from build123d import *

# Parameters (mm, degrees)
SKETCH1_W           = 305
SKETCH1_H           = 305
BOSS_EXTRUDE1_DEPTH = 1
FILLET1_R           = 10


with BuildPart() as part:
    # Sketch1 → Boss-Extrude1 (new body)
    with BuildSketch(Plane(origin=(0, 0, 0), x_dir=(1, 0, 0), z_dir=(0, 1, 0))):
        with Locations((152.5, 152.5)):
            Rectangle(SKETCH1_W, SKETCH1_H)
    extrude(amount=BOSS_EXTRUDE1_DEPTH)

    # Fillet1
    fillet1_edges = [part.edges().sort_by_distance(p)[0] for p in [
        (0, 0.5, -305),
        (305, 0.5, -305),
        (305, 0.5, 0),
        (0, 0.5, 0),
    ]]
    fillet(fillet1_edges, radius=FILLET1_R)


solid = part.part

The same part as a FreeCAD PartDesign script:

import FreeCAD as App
import Part
import Sketcher

V = App.Vector


def edges_at(feature, points):
    """Names of the edges that pass closest to the given points."""
    edges = feature.Shape.Edges
    near = lambda p: min(range(len(edges)), key=lambda i: edges[i].distToShape(Part.Vertex(*p))[0])
    return sorted({f"Edge{near(p) + 1}" for p in points})

doc = App.newDocument("Part")
params = doc.addObject("Spreadsheet::Sheet", "Params")
for row, (alias, value) in enumerate([
    ("sketch1_width", "305 mm"),
    ("pad1_length", "1 mm"),
    ("fillet_radius", "10 mm"),
], start=1):
    params.set(f"A{row}", alias)
    params.set(f"B{row}", "=" + value)
    params.setAlias(f"B{row}", alias)

body = doc.addObject("PartDesign::Body", "Body")

sketch1 = body.newObject("Sketcher::SketchObject", "Sketch")
sketch1.AttachmentSupport = (doc.getObject("XZ_Plane"), [""])
sketch1.MapMode = "FlatFace"
sketch1.addGeometry(Part.LineSegment(V(0, -305, 0), V(0, 0, 0)), False)
sketch1.addGeometry(Part.LineSegment(V(0, 0, 0), V(305, 0, 0)), False)
sketch1.addGeometry(Part.LineSegment(V(305, 0, 0), V(305, -305, 0)), False)
sketch1.addGeometry(Part.LineSegment(V(305, -305, 0), V(0, -305, 0)), False)
sketch1.addConstraint(Sketcher.Constraint("Coincident", 0, 2, 1, 1))
sketch1.addConstraint(Sketcher.Constraint("Coincident", 1, 2, 2, 1))
sketch1.addConstraint(Sketcher.Constraint("Coincident", 2, 2, 3, 1))
sketch1.addConstraint(Sketcher.Constraint("Coincident", 3, 2, 0, 1))
sketch1.addConstraint(Sketcher.Constraint("Vertical", 0))
sketch1.addConstraint(Sketcher.Constraint("Horizontal", 1))
sketch1.addConstraint(Sketcher.Constraint("Vertical", 2))
sketch1.addConstraint(Sketcher.Constraint("Horizontal", 3))
sketch1.addConstraint(Sketcher.Constraint("Coincident", 0, 2, -1, 1))
sketch1.addConstraint(Sketcher.Constraint("Equal", 3, 0))
sketch1.addConstraint(Sketcher.Constraint("DistanceX", 1, 1, 1, 2, 305.0))
sketch1.setExpression("Constraints[10]", "Params.sketch1_width")
pad1 = body.newObject("PartDesign::Pad", "Pad")
pad1.Profile = sketch1
pad1.setExpression("Length", "Params.pad1_length")
pad1.Reversed = True
doc.recompute()

fillet = body.newObject("PartDesign::Fillet", "Fillet")
fillet.Base = (pad1, edges_at(pad1, [
    (0, 0.5, -305),
    (305, 0.5, -305),
    (305, 0.5, 0),
    (0, 0.5, 0),
]))
fillet.setExpression("Radius", "Params.fillet_radius")

doc.recompute()
